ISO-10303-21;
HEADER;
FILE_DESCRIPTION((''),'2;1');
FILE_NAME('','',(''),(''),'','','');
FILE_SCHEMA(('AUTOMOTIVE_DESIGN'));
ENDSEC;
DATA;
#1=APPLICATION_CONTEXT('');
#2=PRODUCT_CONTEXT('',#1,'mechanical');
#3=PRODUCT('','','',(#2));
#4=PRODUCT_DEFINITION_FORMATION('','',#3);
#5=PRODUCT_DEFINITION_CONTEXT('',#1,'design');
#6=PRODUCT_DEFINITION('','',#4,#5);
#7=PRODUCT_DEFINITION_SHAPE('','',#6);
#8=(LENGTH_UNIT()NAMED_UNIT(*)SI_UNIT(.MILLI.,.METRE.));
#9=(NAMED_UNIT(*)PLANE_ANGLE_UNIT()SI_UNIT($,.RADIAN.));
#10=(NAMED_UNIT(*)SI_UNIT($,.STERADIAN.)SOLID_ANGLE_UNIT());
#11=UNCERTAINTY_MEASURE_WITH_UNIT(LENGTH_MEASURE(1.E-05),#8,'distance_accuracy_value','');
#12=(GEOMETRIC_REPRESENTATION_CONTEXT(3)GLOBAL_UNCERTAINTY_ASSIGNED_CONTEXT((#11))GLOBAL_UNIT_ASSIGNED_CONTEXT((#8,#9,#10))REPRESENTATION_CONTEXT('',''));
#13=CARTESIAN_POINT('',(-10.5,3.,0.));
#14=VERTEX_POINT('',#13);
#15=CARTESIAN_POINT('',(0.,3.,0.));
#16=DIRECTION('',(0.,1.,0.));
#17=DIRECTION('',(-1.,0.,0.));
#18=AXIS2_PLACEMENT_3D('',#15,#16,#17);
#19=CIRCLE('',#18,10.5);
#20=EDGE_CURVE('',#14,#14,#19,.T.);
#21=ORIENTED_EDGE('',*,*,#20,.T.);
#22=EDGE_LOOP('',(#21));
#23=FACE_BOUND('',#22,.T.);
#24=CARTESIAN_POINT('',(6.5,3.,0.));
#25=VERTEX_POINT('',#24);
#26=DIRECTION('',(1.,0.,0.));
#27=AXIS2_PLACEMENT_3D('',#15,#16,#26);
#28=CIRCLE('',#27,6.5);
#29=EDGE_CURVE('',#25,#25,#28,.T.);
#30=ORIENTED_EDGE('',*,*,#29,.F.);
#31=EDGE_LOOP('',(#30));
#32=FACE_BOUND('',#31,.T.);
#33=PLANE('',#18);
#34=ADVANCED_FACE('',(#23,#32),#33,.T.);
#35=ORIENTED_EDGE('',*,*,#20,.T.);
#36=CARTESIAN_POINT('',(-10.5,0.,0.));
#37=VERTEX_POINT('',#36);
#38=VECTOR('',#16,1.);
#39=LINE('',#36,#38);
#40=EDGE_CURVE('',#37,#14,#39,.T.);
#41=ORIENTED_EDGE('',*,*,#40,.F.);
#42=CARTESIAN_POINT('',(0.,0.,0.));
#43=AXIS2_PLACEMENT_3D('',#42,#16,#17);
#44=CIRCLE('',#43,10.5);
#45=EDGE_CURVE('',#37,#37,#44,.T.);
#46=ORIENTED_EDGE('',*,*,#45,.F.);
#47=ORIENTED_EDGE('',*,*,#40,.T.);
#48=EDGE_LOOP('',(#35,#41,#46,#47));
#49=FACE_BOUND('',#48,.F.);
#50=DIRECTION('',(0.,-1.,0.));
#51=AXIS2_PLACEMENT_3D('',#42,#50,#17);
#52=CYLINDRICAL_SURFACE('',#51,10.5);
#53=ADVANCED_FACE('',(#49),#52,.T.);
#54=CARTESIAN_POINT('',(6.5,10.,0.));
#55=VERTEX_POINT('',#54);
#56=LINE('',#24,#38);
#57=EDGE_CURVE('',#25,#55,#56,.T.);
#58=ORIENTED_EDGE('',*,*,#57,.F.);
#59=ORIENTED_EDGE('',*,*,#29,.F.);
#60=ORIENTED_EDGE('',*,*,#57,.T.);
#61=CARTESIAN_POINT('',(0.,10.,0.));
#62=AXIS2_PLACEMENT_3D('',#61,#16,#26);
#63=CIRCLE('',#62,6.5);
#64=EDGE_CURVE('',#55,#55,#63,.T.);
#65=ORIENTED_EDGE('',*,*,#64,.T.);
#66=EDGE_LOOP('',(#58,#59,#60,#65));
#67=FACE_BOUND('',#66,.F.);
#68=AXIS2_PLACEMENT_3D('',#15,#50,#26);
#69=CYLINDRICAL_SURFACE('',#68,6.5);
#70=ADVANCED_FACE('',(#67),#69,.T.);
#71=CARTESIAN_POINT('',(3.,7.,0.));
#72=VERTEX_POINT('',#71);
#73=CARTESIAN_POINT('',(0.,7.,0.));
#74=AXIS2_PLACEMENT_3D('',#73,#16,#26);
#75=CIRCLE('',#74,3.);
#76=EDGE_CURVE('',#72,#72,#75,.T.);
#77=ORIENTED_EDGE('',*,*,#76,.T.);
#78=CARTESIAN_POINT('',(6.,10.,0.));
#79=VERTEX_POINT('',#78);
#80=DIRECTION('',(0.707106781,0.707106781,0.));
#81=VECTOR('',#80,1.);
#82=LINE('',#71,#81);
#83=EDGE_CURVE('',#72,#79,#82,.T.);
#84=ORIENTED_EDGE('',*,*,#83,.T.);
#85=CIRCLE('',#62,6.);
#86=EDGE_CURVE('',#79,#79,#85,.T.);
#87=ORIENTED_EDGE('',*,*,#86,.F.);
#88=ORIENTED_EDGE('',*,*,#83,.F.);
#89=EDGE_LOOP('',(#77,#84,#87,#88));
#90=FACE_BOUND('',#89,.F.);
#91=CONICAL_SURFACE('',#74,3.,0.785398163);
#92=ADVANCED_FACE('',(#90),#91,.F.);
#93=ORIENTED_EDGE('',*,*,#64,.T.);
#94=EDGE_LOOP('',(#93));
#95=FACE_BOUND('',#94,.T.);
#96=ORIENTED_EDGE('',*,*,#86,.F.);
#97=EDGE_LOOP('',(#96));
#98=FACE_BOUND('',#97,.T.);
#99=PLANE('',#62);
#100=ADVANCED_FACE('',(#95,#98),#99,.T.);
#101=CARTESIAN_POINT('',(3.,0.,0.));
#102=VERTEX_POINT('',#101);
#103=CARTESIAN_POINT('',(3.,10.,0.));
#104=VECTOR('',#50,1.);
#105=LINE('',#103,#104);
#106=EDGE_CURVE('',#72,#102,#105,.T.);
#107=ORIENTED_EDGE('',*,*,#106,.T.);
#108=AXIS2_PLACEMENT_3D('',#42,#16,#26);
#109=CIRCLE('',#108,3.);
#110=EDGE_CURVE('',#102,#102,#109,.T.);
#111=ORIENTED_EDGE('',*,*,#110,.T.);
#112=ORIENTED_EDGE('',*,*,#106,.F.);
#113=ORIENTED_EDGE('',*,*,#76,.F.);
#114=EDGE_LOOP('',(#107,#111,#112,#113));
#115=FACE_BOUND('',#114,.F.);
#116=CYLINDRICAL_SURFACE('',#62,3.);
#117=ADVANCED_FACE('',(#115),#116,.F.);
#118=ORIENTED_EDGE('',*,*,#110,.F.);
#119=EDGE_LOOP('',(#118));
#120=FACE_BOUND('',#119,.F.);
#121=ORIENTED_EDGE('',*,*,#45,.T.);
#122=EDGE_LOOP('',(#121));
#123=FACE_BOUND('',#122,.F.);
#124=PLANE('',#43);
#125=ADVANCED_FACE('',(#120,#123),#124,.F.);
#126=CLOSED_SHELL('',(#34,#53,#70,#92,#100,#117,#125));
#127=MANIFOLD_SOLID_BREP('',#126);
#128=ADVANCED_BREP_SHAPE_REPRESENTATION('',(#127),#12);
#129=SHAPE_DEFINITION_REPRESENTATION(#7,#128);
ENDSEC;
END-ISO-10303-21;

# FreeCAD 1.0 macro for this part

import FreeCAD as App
import Part
import Sketcher

V = App.Vector


def edges_at(feature, points):
    """Names of the edges that pass closest to the given points."""
    edges = feature.Shape.Edges
    near = lambda p: min(range(len(edges)), key=lambda i: edges[i].distToShape(Part.Vertex(*p))[0])
    return sorted({f"Edge{near(p) + 1}" for p in points})

doc = App.newDocument("Part")
body = doc.addObject("PartDesign::Body", "Body")

# Sketch on XZ plane
sketch1 = body.newObject("Sketcher::SketchObject", "Sketch")
sketch1.AttachmentSupport = (doc.getObject("XZ_Plane"), [""])
sketch1.MapMode = "FlatFace"
sketch1.addGeometry(Part.Circle(V(0, 0, 0), V(0, 0, 1), 10), False)
sketch1.addConstraint(Sketcher.Constraint("Coincident", 0, 3, -1, 1))
sketch1.addConstraint(Sketcher.Constraint("Diameter", 0, 21.0))
pad1 = body.newObject("PartDesign::Pad", "Pad")
pad1.Profile = sketch1
pad1.Length = 3
pad1.Reversed = True

# Sketch on XZ plane
sketch2 = body.newObject("Sketcher::SketchObject", "Sketch001")
sketch2.AttachmentSupport = (doc.getObject("XZ_Plane"), [""])
sketch2.MapMode = "FlatFace"
sketch2.AttachmentOffset = App.Placement(V(0, 0, -3), App.Rotation())
sketch2.addGeometry(Part.Circle(V(0, 0, 0), V(0, 0, 1), 6), False)
sketch2.addConstraint(Sketcher.Constraint("Coincident", 0, 3, -1, 1))
sketch2.addConstraint(Sketcher.Constraint("Diameter", 0, 13.0))
pad2 = body.newObject("PartDesign::Pad", "Pad001")
pad2.Profile = sketch2
pad2.Length = 7
pad2.Reversed = True

# Sketch on XZ plane
sketch3 = body.newObject("Sketcher::SketchObject", "Sketch002")
sketch3.AttachmentSupport = (doc.getObject("XZ_Plane"), [""])
sketch3.MapMode = "FlatFace"
sketch3.AttachmentOffset = App.Placement(V(0, 0, -10), App.Rotation())
sketch3.addGeometry(Part.Circle(V(0, 0, 0), V(0, 0, 1), 3), False)
sketch3.addConstraint(Sketcher.Constraint("Coincident", 0, 3, -1, 1))
sketch3.addConstraint(Sketcher.Constraint("Diameter", 0, 6.0))
pocket1 = body.newObject("PartDesign::Pocket", "Pocket")
pocket1.Profile = sketch3
pocket1.Length = 10
pocket1.Reversed = True
doc.recompute()

chamfer = body.newObject("PartDesign::Chamfer", "Chamfer")
chamfer.Base = (pocket1, edges_at(pocket1, [(-3, 10, 0)]))
chamfer.Size = 3

doc.recompute()
